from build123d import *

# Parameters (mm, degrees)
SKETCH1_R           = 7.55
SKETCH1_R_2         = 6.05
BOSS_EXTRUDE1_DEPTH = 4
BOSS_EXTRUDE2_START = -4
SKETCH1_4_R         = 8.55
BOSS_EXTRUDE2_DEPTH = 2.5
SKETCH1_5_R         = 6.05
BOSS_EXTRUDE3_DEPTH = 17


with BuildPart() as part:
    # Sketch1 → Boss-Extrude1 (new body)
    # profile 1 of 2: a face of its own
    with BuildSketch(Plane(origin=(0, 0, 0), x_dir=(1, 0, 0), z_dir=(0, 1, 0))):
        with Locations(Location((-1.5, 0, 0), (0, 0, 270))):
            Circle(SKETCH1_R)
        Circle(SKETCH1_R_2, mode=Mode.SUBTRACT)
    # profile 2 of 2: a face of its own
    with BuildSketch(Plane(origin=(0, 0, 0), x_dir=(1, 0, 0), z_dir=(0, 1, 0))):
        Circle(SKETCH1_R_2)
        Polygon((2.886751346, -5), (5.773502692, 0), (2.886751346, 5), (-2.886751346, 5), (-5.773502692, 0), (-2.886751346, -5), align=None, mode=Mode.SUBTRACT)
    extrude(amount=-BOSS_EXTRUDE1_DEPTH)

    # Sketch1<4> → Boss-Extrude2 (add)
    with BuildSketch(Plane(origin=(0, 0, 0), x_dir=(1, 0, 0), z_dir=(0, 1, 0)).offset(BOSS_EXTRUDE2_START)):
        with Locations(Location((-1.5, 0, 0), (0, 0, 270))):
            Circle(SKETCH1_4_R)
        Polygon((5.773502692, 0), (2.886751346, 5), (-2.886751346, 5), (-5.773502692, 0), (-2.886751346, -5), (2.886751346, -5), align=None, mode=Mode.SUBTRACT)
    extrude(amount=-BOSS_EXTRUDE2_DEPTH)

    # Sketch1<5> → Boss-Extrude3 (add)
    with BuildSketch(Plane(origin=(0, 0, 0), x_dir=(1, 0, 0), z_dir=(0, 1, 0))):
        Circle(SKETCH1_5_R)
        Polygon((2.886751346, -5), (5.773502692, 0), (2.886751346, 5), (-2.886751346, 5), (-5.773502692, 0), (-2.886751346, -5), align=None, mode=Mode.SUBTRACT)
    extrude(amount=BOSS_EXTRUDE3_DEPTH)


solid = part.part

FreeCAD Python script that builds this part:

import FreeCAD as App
import Part
import Sketcher

V = App.Vector
Q = App.Units.Quantity


def add_polygon(sketch, points):
    """Adds a closed chain of lines whose ends are joined by coincident constraints."""
    first, n = sketch.GeometryCount, len(points)
    for a, b in zip(points, points[1:] + points[:1]):
        sketch.addGeometry(Part.LineSegment(App.Vector(*a, 0), App.Vector(*b, 0)), False)
    for i in range(n):
        sketch.addConstraint(Sketcher.Constraint("Coincident", first + i, 2, first + (i + 1) % n, 1))

doc = App.newDocument("Part")
body = doc.addObject("PartDesign::Body", "Body")

sketch1 = body.newObject("Sketcher::SketchObject", "Sketch")
sketch1.AttachmentSupport = (doc.getObject("XZ_Plane"), [""])
sketch1.MapMode = "FlatFace"
sketch1.addGeometry(Part.Circle(V(-2, 0, 0), V(0, 0, 1), 8), False)
add_polygon(sketch1, [(3, 5), (-3, 5), (-6, 0), (-3, -5), (3, -5), (6, 0)])
sketch1.addConstraint([
    Sketcher.Constraint("Horizontal", 1),
    Sketcher.Constraint("Horizontal", 4),
    Sketcher.Constraint("Symmetric", 1, 2, 4, 2, -1, 1),
    Sketcher.Constraint("Symmetric", 2, 2, 5, 2, -1, 1),
    Sketcher.Constraint("PointOnObject", 0, 3, -1),
    Sketcher.Constraint("PointOnObject", 2, 2, -1),
    Sketcher.Constraint("Parallel", 3, 6),
    Sketcher.Constraint("Vertical", 1, 2, 3, 2),
    Sketcher.Constraint("Diameter", 0, Q("15.1 mm")),
    Sketcher.Constraint("Angle", 2, Q("-120 deg")),
    Sketcher.Constraint("DistanceY", -1, 1, 1, 2, Q("5 mm")),
    Sketcher.Constraint("DistanceX", 0, 3, -1, 1, Q("1.5 mm")),
    Sketcher.Constraint("DistanceX", 1, 2, 1, 1, Q("5.773503 mm")),
])
pad1 = body.newObject("PartDesign::Pad", "Pad")
pad1.Profile = sketch1
pad1.Length = 4

sketch2 = body.newObject("Sketcher::SketchObject", "Sketch001")
sketch2.AttachmentSupport = (doc.getObject("XZ_Plane"), [""])
sketch2.MapMode = "FlatFace"
sketch2.AttachmentOffset = App.Placement(V(0, 0, 4), App.Rotation())
sketch2.addGeometry(Part.Circle(V(-2, 0, 0), V(0, 0, 1), 9), False)
add_polygon(sketch2, [(3, -5), (6, 0), (3, 5), (-3, 5), (-6, 0), (-3, -5)])
sketch2.addConstraint([
    Sketcher.Constraint("Horizontal", 3),
    Sketcher.Constraint("Horizontal", 6),
    Sketcher.Constraint("Symmetric", 1, 2, 4, 2, -1, 1),
    Sketcher.Constraint("Symmetric", 2, 2, 5, 2, -1, 1),
    Sketcher.Constraint("PointOnObject", 0, 3, -1),
    Sketcher.Constraint("PointOnObject", 1, 2, -1),
    Sketcher.Constraint("Parallel", 1, 4),
    Sketcher.Constraint("Vertical", 3, 2, 5, 2),
    Sketcher.Constraint("Diameter", 0, Q("17.1 mm")),
    Sketcher.Constraint("Angle", 1, Q("60 deg")),
    Sketcher.Constraint("DistanceY", -1, 1, 2, 2, Q("5 mm")),
    Sketcher.Constraint("DistanceX", 0, 3, -1, 1, Q("1.5 mm")),
    Sketcher.Constraint("DistanceX", 3, 2, 3, 1, Q("5.773503 mm")),
])
pad2 = body.newObject("PartDesign::Pad", "Pad001")
pad2.Profile = sketch2
pad2.Length = 2.5

sketch3 = body.newObject("Sketcher::SketchObject", "Sketch002")
sketch3.AttachmentSupport = (doc.getObject("XZ_Plane"), [""])
sketch3.MapMode = "FlatFace"
sketch3.addGeometry(Part.Circle(V(0, 0, 0), V(0, 0, 1), 6), False)
add_polygon(sketch3, [(6, 0), (3, 5), (-3, 5), (-6, 0), (-3, -5), (3, -5)])
sketch3.addConstraint([
    Sketcher.Constraint("Horizontal", 2),
    Sketcher.Constraint("Horizontal", 5),
    Sketcher.Constraint("Coincident", 0, 3, -1, 1),
    Sketcher.Constraint("Symmetric", 1, 2, 4, 2, -1, 1),
    Sketcher.Constraint("Symmetric", 3, 2, 6, 2, -1, 1),
    Sketcher.Constraint("PointOnObject", 3, 2, -1),
    Sketcher.Constraint("Parallel", 3, 6),
    Sketcher.Constraint("Vertical", 2, 2, 4, 2),
    Sketcher.Constraint("Diameter", 0, Q("12.1 mm")),
    Sketcher.Constraint("Angle", 1, Q("120 deg")),
    Sketcher.Constraint("DistanceY", -1, 1, 1, 2, Q("5 mm")),
    Sketcher.Constraint("DistanceX", 2, 2, 2, 1, Q("5.773503 mm")),
])
pad3 = body.newObject("PartDesign::Pad", "Pad002")
pad3.Profile = sketch3
pad3.Length = 17
pad3.Reversed = True

doc.recompute()
